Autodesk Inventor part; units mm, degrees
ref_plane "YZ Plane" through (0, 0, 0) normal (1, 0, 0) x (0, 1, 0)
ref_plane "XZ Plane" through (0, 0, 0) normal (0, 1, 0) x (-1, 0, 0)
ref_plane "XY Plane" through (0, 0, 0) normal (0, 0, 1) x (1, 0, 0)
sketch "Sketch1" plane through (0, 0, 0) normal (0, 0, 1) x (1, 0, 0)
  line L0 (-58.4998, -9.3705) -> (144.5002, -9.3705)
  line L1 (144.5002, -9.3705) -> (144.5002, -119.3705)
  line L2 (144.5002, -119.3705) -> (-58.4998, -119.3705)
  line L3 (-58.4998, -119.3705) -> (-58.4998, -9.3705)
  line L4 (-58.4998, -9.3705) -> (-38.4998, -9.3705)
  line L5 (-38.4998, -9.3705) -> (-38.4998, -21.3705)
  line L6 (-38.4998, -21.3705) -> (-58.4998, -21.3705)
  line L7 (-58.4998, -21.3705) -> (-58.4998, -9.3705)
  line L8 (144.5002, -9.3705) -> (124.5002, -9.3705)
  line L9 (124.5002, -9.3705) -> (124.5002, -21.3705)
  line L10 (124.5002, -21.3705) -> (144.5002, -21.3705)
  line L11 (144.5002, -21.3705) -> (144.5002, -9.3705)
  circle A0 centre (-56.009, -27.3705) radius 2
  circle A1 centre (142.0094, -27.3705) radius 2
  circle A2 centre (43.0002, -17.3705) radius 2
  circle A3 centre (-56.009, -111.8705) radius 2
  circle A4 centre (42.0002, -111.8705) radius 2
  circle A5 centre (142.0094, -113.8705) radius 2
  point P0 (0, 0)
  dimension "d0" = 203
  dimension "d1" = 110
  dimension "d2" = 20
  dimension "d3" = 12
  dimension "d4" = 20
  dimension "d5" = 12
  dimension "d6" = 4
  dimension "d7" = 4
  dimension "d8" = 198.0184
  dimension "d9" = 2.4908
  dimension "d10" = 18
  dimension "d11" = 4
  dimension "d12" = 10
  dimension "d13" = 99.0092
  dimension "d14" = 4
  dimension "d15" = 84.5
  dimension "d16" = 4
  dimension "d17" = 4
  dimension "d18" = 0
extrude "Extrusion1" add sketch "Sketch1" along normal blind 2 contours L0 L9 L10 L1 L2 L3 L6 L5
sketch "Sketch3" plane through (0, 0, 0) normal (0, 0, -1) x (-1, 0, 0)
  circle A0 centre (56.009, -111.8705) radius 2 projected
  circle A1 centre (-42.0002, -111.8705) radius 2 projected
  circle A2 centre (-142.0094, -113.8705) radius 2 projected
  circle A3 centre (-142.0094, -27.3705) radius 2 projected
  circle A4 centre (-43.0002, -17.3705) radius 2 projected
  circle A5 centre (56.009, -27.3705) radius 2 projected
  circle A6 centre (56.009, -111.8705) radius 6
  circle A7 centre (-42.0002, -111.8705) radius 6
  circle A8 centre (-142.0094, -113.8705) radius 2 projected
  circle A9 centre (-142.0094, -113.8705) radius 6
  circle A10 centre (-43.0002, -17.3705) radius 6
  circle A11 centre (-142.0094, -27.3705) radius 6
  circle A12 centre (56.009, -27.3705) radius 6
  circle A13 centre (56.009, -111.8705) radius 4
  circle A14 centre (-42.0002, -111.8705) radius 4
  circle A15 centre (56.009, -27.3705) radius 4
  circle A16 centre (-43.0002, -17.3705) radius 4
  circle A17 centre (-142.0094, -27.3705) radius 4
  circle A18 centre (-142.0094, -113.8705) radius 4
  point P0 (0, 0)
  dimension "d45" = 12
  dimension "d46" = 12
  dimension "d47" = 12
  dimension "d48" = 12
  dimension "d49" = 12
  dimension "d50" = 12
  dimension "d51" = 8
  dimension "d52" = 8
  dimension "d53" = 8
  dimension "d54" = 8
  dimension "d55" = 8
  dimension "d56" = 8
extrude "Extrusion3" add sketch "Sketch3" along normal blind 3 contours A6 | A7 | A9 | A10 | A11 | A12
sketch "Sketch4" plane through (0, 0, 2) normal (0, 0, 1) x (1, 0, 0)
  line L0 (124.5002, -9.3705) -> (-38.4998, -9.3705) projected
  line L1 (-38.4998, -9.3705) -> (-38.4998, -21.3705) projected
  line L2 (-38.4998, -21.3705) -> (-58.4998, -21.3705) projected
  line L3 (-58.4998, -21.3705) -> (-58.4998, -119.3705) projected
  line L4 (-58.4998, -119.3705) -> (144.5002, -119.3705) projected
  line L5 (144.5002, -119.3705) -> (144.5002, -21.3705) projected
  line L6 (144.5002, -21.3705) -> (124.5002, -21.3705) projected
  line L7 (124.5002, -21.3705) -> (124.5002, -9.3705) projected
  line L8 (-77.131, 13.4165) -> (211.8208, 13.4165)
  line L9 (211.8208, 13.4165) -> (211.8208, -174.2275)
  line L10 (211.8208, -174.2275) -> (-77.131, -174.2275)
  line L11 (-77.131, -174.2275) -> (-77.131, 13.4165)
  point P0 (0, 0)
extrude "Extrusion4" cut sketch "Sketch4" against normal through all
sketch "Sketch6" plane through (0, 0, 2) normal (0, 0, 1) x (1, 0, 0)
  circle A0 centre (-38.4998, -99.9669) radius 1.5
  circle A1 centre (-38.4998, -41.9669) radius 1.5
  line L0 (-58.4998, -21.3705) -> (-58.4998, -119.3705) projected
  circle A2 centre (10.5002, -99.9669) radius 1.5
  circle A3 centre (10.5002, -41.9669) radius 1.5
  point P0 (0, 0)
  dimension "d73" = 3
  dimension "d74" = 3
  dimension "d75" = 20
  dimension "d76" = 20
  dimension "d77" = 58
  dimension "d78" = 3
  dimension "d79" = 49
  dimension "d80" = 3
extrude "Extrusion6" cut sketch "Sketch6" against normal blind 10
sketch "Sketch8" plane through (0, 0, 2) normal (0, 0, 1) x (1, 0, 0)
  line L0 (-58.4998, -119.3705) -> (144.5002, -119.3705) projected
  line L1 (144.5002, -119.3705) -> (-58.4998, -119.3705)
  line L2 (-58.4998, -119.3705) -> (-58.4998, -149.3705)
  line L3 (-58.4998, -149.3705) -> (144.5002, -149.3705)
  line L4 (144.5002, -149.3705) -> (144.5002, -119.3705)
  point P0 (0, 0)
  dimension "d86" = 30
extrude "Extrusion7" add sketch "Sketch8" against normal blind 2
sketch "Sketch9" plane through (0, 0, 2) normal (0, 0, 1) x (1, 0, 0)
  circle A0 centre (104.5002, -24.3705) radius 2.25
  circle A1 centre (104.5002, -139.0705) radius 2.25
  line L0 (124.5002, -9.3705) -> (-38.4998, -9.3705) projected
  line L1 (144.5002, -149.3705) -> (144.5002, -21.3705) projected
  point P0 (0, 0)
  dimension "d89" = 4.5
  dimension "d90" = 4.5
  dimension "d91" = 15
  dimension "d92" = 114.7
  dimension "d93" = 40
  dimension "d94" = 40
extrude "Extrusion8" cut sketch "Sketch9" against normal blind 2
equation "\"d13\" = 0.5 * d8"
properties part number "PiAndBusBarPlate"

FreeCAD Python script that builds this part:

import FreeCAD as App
import Part
import Sketcher
from FreeCAD import Vector

doc = App.newDocument("Part")
body = doc.addObject("PartDesign::Body", "Body")

# Sketch on XY plane
sketch1 = body.newObject("Sketcher::SketchObject", "Sketch")
sketch1.AttachmentSupport = (doc.getObject("XY_Plane"), [""])
sketch1.MapMode = "FlatFace"
sketch1.addGeometry(Part.LineSegment(Vector(124.5002, -9.3705, 0), Vector(-38.4998, -9.3705, 0)), False)
sketch1.addGeometry(Part.LineSegment(Vector(-38.4998, -9.3705, 0), Vector(-38.4998, -21.3705, 0)), False)
sketch1.addGeometry(Part.LineSegment(Vector(-38.4998, -21.3705, 0), Vector(-58.4998, -21.3705, 0)), False)
sketch1.addGeometry(Part.LineSegment(Vector(-58.4998, -21.3705, 0), Vector(-58.4998, -119.3705, 0)), False)
sketch1.addGeometry(Part.LineSegment(Vector(-58.4998, -119.3705, 0), Vector(144.5002, -119.3705, 0)), False)
sketch1.addGeometry(Part.LineSegment(Vector(144.5002, -119.3705, 0), Vector(144.5002, -21.3705, 0)), False)
sketch1.addGeometry(Part.LineSegment(Vector(144.5002, -21.3705, 0), Vector(124.5002, -21.3705, 0)), False)
sketch1.addGeometry(Part.LineSegment(Vector(124.5002, -21.3705, 0), Vector(124.5002, -9.3705, 0)), False)
sketch1.addGeometry(Part.Circle(Vector(-56.009, -111.8705, 0), Vector(0, 0, 1), 2), False)
sketch1.addGeometry(Part.Circle(Vector(42.0002, -111.8705, 0), Vector(0, 0, 1), 2), False)
sketch1.addGeometry(Part.Circle(Vector(142.0094, -113.8705, 0), Vector(0, 0, 1), 2), False)
sketch1.addGeometry(Part.Circle(Vector(-56.009, -27.3705, 0), Vector(0, 0, 1), 2), False)
sketch1.addGeometry(Part.Circle(Vector(43.0002, -17.3705, 0), Vector(0, 0, 1), 2), False)
sketch1.addGeometry(Part.Circle(Vector(142.0094, -27.3705, 0), Vector(0, 0, 1), 2), False)
sketch1.addConstraint(Sketcher.Constraint("Coincident", 0, 2, 1, 1))
sketch1.addConstraint(Sketcher.Constraint("Coincident", 1, 2, 2, 1))
sketch1.addConstraint(Sketcher.Constraint("Coincident", 2, 2, 3, 1))
sketch1.addConstraint(Sketcher.Constraint("Coincident", 3, 2, 4, 1))
sketch1.addConstraint(Sketcher.Constraint("Coincident", 4, 2, 5, 1))
sketch1.addConstraint(Sketcher.Constraint("Coincident", 5, 2, 6, 1))
sketch1.addConstraint(Sketcher.Constraint("Coincident", 6, 2, 7, 1))
sketch1.addConstraint(Sketcher.Constraint("Coincident", 7, 2, 0, 1))
sketch1.addConstraint(Sketcher.Constraint("Horizontal", 0))
sketch1.addConstraint(Sketcher.Constraint("Vertical", 1))
sketch1.addConstraint(Sketcher.Constraint("Horizontal", 2))
sketch1.addConstraint(Sketcher.Constraint("Vertical", 3))
sketch1.addConstraint(Sketcher.Constraint("Horizontal", 4))
sketch1.addConstraint(Sketcher.Constraint("Vertical", 5))
sketch1.addConstraint(Sketcher.Constraint("Horizontal", 6))
sketch1.addConstraint(Sketcher.Constraint("Vertical", 7))
sketch1.addConstraint(Sketcher.Constraint("Equal", 8, 9))
sketch1.addConstraint(Sketcher.Constraint("Equal", 9, 10))
sketch1.addConstraint(Sketcher.Constraint("Equal", 10, 11))
sketch1.addConstraint(Sketcher.Constraint("Equal", 11, 12))
sketch1.addConstraint(Sketcher.Constraint("Equal", 12, 13))
sketch1.addConstraint(Sketcher.Constraint("Horizontal", 8, 3, 9, 3))
sketch1.addConstraint(Sketcher.Constraint("Horizontal", 11, 3, 13, 3))
sketch1.addConstraint(Sketcher.Constraint("Horizontal", 2, 2, 5, 2))
sketch1.addConstraint(Sketcher.Constraint("Vertical", 8, 3, 11, 3))
sketch1.addConstraint(Sketcher.Constraint("Vertical", 10, 3, 13, 3))
sketch1.addConstraint(Sketcher.Constraint("Equal", 2, 6))
sketch1.addConstraint(Sketcher.Constraint("Diameter", 8, 4.0))
sketch1.addConstraint(Sketcher.Constraint("DistanceX", 2, 2, 2, 1, 20.0))
sketch1.addConstraint(Sketcher.Constraint("DistanceX", 4, 1, 4, 2, 203.0))
sketch1.addConstraint(Sketcher.Constraint("DistanceY", 1, 2, 1, 1, 12.0))
sketch1.addConstraint(Sketcher.Constraint("DistanceY", 11, 3, 12, 3, 10.0))
sketch1.addConstraint(Sketcher.Constraint("DistanceY", 11, 3, 0, 2, 18.0))
sketch1.addConstraint(Sketcher.Constraint("DistanceY", 8, 3, 11, 3, 84.5))
sketch1.addConstraint(Sketcher.Constraint("DistanceY", 3, 2, 3, 1, 98.0))
sketch1.addConstraint(Sketcher.Constraint("DistanceY", 10, 3, 9, 3, 2.0))
sketch1.addConstraint(Sketcher.Constraint("DistanceX", 9, 3, 12, 3, 1.0))
sketch1.addConstraint(Sketcher.Constraint("DistanceX", 8, 3, 10, 3, 198.0184))
sketch1.addConstraint(Sketcher.Constraint("DistanceX", 11, 3, 12, 3, 99.0092))
sketch1.addConstraint(Sketcher.Constraint("DistanceX", 0, 2, 12, 3, 81.5))
sketch1.addConstraint(Sketcher.Constraint("DistanceX", 8, 3, -1, 1, 56.009))
sketch1.addConstraint(Sketcher.Constraint("DistanceY", 8, 3, -1, 1, 111.8705))
pad1 = body.newObject("PartDesign::Pad", "Pad")
pad1.Profile = sketch1
pad1.Length = 2

# Sketch on XY plane
sketch2 = body.newObject("Sketcher::SketchObject", "Sketch001")
sketch2.AttachmentSupport = (doc.getObject("XY_Plane"), [""])
sketch2.MapMode = "FlatFace"
sketch2.addGeometry(Part.Circle(Vector(-56.009, -111.8705, 0), Vector(0, 0, 1), 6), False)
sketch2.addGeometry(Part.Circle(Vector(-56.009, -111.8705, 0), Vector(0, 0, 1), 4), False)
sketch2.addGeometry(Part.Circle(Vector(42.0002, -111.8705, 0), Vector(0, 0, 1), 6), False)
sketch2.addGeometry(Part.Circle(Vector(42.0002, -111.8705, 0), Vector(0, 0, 1), 4), False)
sketch2.addGeometry(Part.Circle(Vector(142.0094, -113.8705, 0), Vector(0, 0, 1), 6), False)
sketch2.addGeometry(Part.Circle(Vector(142.0094, -113.8705, 0), Vector(0, 0, 1), 4), False)
sketch2.addGeometry(Part.Circle(Vector(43.0002, -17.3705, 0), Vector(0, 0, 1), 6), False)
sketch2.addGeometry(Part.Circle(Vector(43.0002, -17.3705, 0), Vector(0, 0, 1), 4), False)
sketch2.addGeometry(Part.Circle(Vector(142.0094, -27.3705, 0), Vector(0, 0, 1), 6), False)
sketch2.addGeometry(Part.Circle(Vector(142.0094, -27.3705, 0), Vector(0, 0, 1), 4), False)
sketch2.addGeometry(Part.Circle(Vector(-56.009, -27.3705, 0), Vector(0, 0, 1), 6), False)
sketch2.addGeometry(Part.Circle(Vector(-56.009, -27.3705, 0), Vector(0, 0, 1), 4), False)
sketch2.addConstraint(Sketcher.Constraint("Coincident", 1, 3, 0, 3))
sketch2.addConstraint(Sketcher.Constraint("Coincident", 3, 3, 2, 3))
sketch2.addConstraint(Sketcher.Constraint("Coincident", 5, 3, 4, 3))
sketch2.addConstraint(Sketcher.Constraint("Coincident", 7, 3, 6, 3))
sketch2.addConstraint(Sketcher.Constraint("Coincident", 9, 3, 8, 3))
sketch2.addConstraint(Sketcher.Constraint("Coincident", 11, 3, 10, 3))
sketch2.addConstraint(Sketcher.Constraint("Equal", 0, 2))
sketch2.addConstraint(Sketcher.Constraint("Equal", 1, 3))
sketch2.addConstraint(Sketcher.Constraint("Equal", 2, 4))
sketch2.addConstraint(Sketcher.Constraint("Equal", 3, 5))
sketch2.addConstraint(Sketcher.Constraint("Equal", 4, 6))
sketch2.addConstraint(Sketcher.Constraint("Equal", 5, 7))
sketch2.addConstraint(Sketcher.Constraint("Equal", 6, 8))
sketch2.addConstraint(Sketcher.Constraint("Equal", 7, 9))
sketch2.addConstraint(Sketcher.Constraint("Equal", 8, 10))
sketch2.addConstraint(Sketcher.Constraint("Equal", 9, 11))
sketch2.addConstraint(Sketcher.Constraint("Horizontal", 1, 3, 2, 3))
sketch2.addConstraint(Sketcher.Constraint("Horizontal", 9, 3, 10, 3))
sketch2.addConstraint(Sketcher.Constraint("Vertical", 5, 3, 8, 3))
sketch2.addConstraint(Sketcher.Constraint("Vertical", 1, 3, 10, 3))
sketch2.addConstraint(Sketcher.Constraint("Diameter", 0, 12.0))
sketch2.addConstraint(Sketcher.Constraint("Diameter", 1, 8.0))
sketch2.addConstraint(Sketcher.Constraint("DistanceY", 4, 3, 2, 3, 2.0))
sketch2.addConstraint(Sketcher.Constraint("DistanceX", 2, 3, 6, 3, 1.0))
sketch2.addConstraint(Sketcher.Constraint("DistanceY", 8, 3, 6, 3, 10.0))
sketch2.addConstraint(Sketcher.Constraint("DistanceY", 2, 3, 6, 3, 94.5))
sketch2.addConstraint(Sketcher.Constraint("DistanceX", 0, 3, -1, 1, 56.009))
sketch2.addConstraint(Sketcher.Constraint("DistanceY", 0, 3, -1, 1, 111.8705))
sketch2.addConstraint(Sketcher.Constraint("DistanceX", -1, 1, 2, 3, 42.0002))
sketch2.addConstraint(Sketcher.Constraint("DistanceX", -1, 1, 4, 3, 142.0094))
pad2 = body.newObject("PartDesign::Pad", "Pad001")
pad2.Profile = sketch2
pad2.Length = 3
pad2.Reversed = True

# Sketch on XY plane
sketch3 = body.newObject("Sketcher::SketchObject", "Sketch002")
sketch3.AttachmentSupport = (doc.getObject("XY_Plane"), [""])
sketch3.MapMode = "FlatFace"
sketch3.AttachmentOffset = App.Placement(Vector(0, 0, 2), App.Rotation())
sketch3.addGeometry(Part.LineSegment(Vector(211.8208, 13.4165, 0), Vector(-77.131, 13.4165, 0)), False)
sketch3.addGeometry(Part.LineSegment(Vector(-77.131, 13.4165, 0), Vector(-77.131, -174.2275, 0)), False)
sketch3.addGeometry(Part.LineSegment(Vector(-77.131, -174.2275, 0), Vector(211.8208, -174.2275, 0)), False)
sketch3.addGeometry(Part.LineSegment(Vector(211.8208, -174.2275, 0), Vector(211.8208, 13.4165, 0)), False)
sketch3.addGeometry(Part.LineSegment(Vector(-38.4998, -9.3705, 0), Vector(124.5002, -9.3705, 0)), False)
sketch3.addGeometry(Part.LineSegment(Vector(124.5002, -9.3705, 0), Vector(124.5002, -21.3705, 0)), False)
sketch3.addGeometry(Part.LineSegment(Vector(124.5002, -21.3705, 0), Vector(144.5002, -21.3705, 0)), False)
sketch3.addGeometry(Part.LineSegment(Vector(144.5002, -21.3705, 0), Vector(144.5002, -119.3705, 0)), False)
sketch3.addGeometry(Part.LineSegment(Vector(144.5002, -119.3705, 0), Vector(-58.4998, -119.3705, 0)), False)
sketch3.addGeometry(Part.LineSegment(Vector(-58.4998, -119.3705, 0), Vector(-58.4998, -21.3705, 0)), False)
sketch3.addGeometry(Part.LineSegment(Vector(-58.4998, -21.3705, 0), Vector(-38.4998, -21.3705, 0)), False)
sketch3.addGeometry(Part.LineSegment(Vector(-38.4998, -21.3705, 0), Vector(-38.4998, -9.3705, 0)), False)
sketch3.addConstraint(Sketcher.Constraint("Coincident", 0, 2, 1, 1))
sketch3.addConstraint(Sketcher.Constraint("Coincident", 1, 2, 2, 1))
sketch3.addConstraint(Sketcher.Constraint("Coincident", 2, 2, 3, 1))
sketch3.addConstraint(Sketcher.Constraint("Coincident", 3, 2, 0, 1))
sketch3.addConstraint(Sketcher.Constraint("Coincident", 4, 2, 5, 1))
sketch3.addConstraint(Sketcher.Constraint("Coincident", 5, 2, 6, 1))
sketch3.addConstraint(Sketcher.Constraint("Coincident", 6, 2, 7, 1))
sketch3.addConstraint(Sketcher.Constraint("Coincident", 7, 2, 8, 1))
sketch3.addConstraint(Sketcher.Constraint("Coincident", 8, 2, 9, 1))
sketch3.addConstraint(Sketcher.Constraint("Coincident", 9, 2, 10, 1))
sketch3.addConstraint(Sketcher.Constraint("Coincident", 10, 2, 11, 1))
sketch3.addConstraint(Sketcher.Constraint("Coincident", 11, 2, 4, 1))
sketch3.addConstraint(Sketcher.Constraint("Horizontal", 0))
sketch3.addConstraint(Sketcher.Constraint("Vertical", 1))
sketch3.addConstraint(Sketcher.Constraint("Horizontal", 2))
sketch3.addConstraint(Sketcher.Constraint("Vertical", 3))
sketch3.addConstraint(Sketcher.Constraint("Horizontal", 4))
sketch3.addConstraint(Sketcher.Constraint("Vertical", 5))
sketch3.addConstraint(Sketcher.Constraint("Horizontal", 6))
sketch3.addConstraint(Sketcher.Constraint("Vertical", 7))
sketch3.addConstraint(Sketcher.Constraint("Horizontal", 8))
sketch3.addConstraint(Sketcher.Constraint("Vertical", 9))
sketch3.addConstraint(Sketcher.Constraint("Horizontal", 10))
sketch3.addConstraint(Sketcher.Constraint("Vertical", 11))
sketch3.addConstraint(Sketcher.Constraint("Horizontal", 6, 2, 9, 2))
sketch3.addConstraint(Sketcher.Constraint("Equal", 6, 10))
sketch3.addConstraint(Sketcher.Constraint("DistanceX", 4, 1, 4, 2, 163.0))
sketch3.addConstraint(Sketcher.Constraint("DistanceX", 6, 1, 6, 2, 20.0))
sketch3.addConstraint(Sketcher.Constraint("DistanceY", 5, 2, 5, 1, 12.0))
sketch3.addConstraint(Sketcher.Constraint("DistanceY", 7, 2, 7, 1, 98.0))
sketch3.addConstraint(Sketcher.Constraint("DistanceY", 1, 2, 1, 1, 187.644))
sketch3.addConstraint(Sketcher.Constraint("DistanceX", 0, 2, 0, 1, 288.9518))
sketch3.addConstraint(Sketcher.Constraint("DistanceX", 0, 2, -1, 1, 77.131))
sketch3.addConstraint(Sketcher.Constraint("DistanceY", 4, 2, 3, 2, 22.787))
sketch3.addConstraint(Sketcher.Constraint("DistanceY", -1, 1, 0, 2, 13.4165))
sketch3.addConstraint(Sketcher.Constraint("DistanceX", -1, 1, 4, 2, 124.5002))
pocket1 = body.newObject("PartDesign::Pocket", "Pocket")
pocket1.Profile = sketch3
pocket1.Type = "ThroughAll"

# Sketch on XY plane
sketch4 = body.newObject("Sketcher::SketchObject", "Sketch003")
sketch4.AttachmentSupport = (doc.getObject("XY_Plane"), [""])
sketch4.MapMode = "FlatFace"
sketch4.AttachmentOffset = App.Placement(Vector(0, 0, 2), App.Rotation())
sketch4.addGeometry(Part.Circle(Vector(-38.4998, -99.9669, 0), Vector(0, 0, 1), 1.5), False)
sketch4.addGeometry(Part.Circle(Vector(-38.4998, -41.9669, 0), Vector(0, 0, 1), 1.5), False)
sketch4.addGeometry(Part.Circle(Vector(10.5002, -99.9669, 0), Vector(0, 0, 1), 1.5), False)
sketch4.addGeometry(Part.Circle(Vector(10.5002, -41.9669, 0), Vector(0, 0, 1), 1.5), False)
sketch4.addConstraint(Sketcher.Constraint("Equal", 0, 1))
sketch4.addConstraint(Sketcher.Constraint("Equal", 1, 2))
sketch4.addConstraint(Sketcher.Constraint("Equal", 2, 3))
sketch4.addConstraint(Sketcher.Constraint("Horizontal", 0, 3, 2, 3))
sketch4.addConstraint(Sketcher.Constraint("Horizontal", 1, 3, 3, 3))
sketch4.addConstraint(Sketcher.Constraint("Vertical", 0, 3, 1, 3))
sketch4.addConstraint(Sketcher.Constraint("Vertical", 2, 3, 3, 3))
sketch4.addConstraint(Sketcher.Constraint("Diameter", 0, 3.0))
sketch4.addConstraint(Sketcher.Constraint("DistanceY", 0, 3, 1, 3, 58.0))
sketch4.addConstraint(Sketcher.Constraint("DistanceX", 0, 3, 2, 3, 49.0))
sketch4.addConstraint(Sketcher.Constraint("DistanceY", 0, 3, -1, 1, 99.967))
sketch4.addConstraint(Sketcher.Constraint("DistanceX", 0, 3, -1, 1, 38.4998))
pocket2 = body.newObject("PartDesign::Pocket", "Pocket001")
pocket2.Profile = sketch4
pocket2.Length = 10

# Sketch on XY plane
sketch5 = body.newObject("Sketcher::SketchObject", "Sketch004")
sketch5.AttachmentSupport = (doc.getObject("XY_Plane"), [""])
sketch5.MapMode = "FlatFace"
sketch5.AttachmentOffset = App.Placement(Vector(0, 0, 2), App.Rotation())
sketch5.addGeometry(Part.LineSegment(Vector(144.5002, -119.3705, 0), Vector(-58.4998, -119.3705, 0)), False)
sketch5.addGeometry(Part.LineSegment(Vector(-58.4998, -119.3705, 0), Vector(-58.4998, -149.3705, 0)), False)
sketch5.addGeometry(Part.LineSegment(Vector(-58.4998, -149.3705, 0), Vector(144.5002, -149.3705, 0)), False)
sketch5.addGeometry(Part.LineSegment(Vector(144.5002, -149.3705, 0), Vector(144.5002, -119.3705, 0)), False)
sketch5.addConstraint(Sketcher.Constraint("Coincident", 0, 2, 1, 1))
sketch5.addConstraint(Sketcher.Constraint("Coincident", 1, 2, 2, 1))
sketch5.addConstraint(Sketcher.Constraint("Coincident", 2, 2, 3, 1))
sketch5.addConstraint(Sketcher.Constraint("Coincident", 3, 2, 0, 1))
sketch5.addConstraint(Sketcher.Constraint("Horizontal", 0))
sketch5.addConstraint(Sketcher.Constraint("Vertical", 1))
sketch5.addConstraint(Sketcher.Constraint("Horizontal", 2))
sketch5.addConstraint(Sketcher.Constraint("Vertical", 3))
sketch5.addConstraint(Sketcher.Constraint("DistanceY", 1, 2, 1, 1, 30.0))
sketch5.addConstraint(Sketcher.Constraint("DistanceX", 0, 2, 0, 1, 203.0))
sketch5.addConstraint(Sketcher.Constraint("DistanceX", 0, 2, -1, 1, 58.4998))
sketch5.addConstraint(Sketcher.Constraint("DistanceY", 0, 2, -1, 1, 119.3705))
pad3 = body.newObject("PartDesign::Pad", "Pad002")
pad3.Profile = sketch5
pad3.Length = 2
pad3.Reversed = True

# Sketch on XY plane
sketch6 = body.newObject("Sketcher::SketchObject", "Sketch005")
sketch6.AttachmentSupport = (doc.getObject("XY_Plane"), [""])
sketch6.MapMode = "FlatFace"
sketch6.AttachmentOffset = App.Placement(Vector(0, 0, 2), App.Rotation())
sketch6.addGeometry(Part.Circle(Vector(104.5002, -24.3705, 0), Vector(0, 0, 1), 2.25), False)
sketch6.addGeometry(Part.Circle(Vector(104.5002, -139.0705, 0), Vector(0, 0, 1), 2.25), False)
sketch6.addConstraint(Sketcher.Constraint("Equal", 0, 1))
sketch6.addConstraint(Sketcher.Constraint("Vertical", 0, 3, 1, 3))
sketch6.addConstraint(Sketcher.Constraint("Diameter", 0, 4.5))
sketch6.addConstraint(Sketcher.Constraint("DistanceY", 1, 3, 0, 3, 114.7))
sketch6.addConstraint(Sketcher.Constraint("DistanceX", -1, 1, 0, 3, 104.5002))
sketch6.addConstraint(Sketcher.Constraint("DistanceY", 0, 3, -1, 1, 24.3705))
pocket3 = body.newObject("PartDesign::Pocket", "Pocket002")
pocket3.Profile = sketch6
pocket3.Length = 2

doc.recompute()
